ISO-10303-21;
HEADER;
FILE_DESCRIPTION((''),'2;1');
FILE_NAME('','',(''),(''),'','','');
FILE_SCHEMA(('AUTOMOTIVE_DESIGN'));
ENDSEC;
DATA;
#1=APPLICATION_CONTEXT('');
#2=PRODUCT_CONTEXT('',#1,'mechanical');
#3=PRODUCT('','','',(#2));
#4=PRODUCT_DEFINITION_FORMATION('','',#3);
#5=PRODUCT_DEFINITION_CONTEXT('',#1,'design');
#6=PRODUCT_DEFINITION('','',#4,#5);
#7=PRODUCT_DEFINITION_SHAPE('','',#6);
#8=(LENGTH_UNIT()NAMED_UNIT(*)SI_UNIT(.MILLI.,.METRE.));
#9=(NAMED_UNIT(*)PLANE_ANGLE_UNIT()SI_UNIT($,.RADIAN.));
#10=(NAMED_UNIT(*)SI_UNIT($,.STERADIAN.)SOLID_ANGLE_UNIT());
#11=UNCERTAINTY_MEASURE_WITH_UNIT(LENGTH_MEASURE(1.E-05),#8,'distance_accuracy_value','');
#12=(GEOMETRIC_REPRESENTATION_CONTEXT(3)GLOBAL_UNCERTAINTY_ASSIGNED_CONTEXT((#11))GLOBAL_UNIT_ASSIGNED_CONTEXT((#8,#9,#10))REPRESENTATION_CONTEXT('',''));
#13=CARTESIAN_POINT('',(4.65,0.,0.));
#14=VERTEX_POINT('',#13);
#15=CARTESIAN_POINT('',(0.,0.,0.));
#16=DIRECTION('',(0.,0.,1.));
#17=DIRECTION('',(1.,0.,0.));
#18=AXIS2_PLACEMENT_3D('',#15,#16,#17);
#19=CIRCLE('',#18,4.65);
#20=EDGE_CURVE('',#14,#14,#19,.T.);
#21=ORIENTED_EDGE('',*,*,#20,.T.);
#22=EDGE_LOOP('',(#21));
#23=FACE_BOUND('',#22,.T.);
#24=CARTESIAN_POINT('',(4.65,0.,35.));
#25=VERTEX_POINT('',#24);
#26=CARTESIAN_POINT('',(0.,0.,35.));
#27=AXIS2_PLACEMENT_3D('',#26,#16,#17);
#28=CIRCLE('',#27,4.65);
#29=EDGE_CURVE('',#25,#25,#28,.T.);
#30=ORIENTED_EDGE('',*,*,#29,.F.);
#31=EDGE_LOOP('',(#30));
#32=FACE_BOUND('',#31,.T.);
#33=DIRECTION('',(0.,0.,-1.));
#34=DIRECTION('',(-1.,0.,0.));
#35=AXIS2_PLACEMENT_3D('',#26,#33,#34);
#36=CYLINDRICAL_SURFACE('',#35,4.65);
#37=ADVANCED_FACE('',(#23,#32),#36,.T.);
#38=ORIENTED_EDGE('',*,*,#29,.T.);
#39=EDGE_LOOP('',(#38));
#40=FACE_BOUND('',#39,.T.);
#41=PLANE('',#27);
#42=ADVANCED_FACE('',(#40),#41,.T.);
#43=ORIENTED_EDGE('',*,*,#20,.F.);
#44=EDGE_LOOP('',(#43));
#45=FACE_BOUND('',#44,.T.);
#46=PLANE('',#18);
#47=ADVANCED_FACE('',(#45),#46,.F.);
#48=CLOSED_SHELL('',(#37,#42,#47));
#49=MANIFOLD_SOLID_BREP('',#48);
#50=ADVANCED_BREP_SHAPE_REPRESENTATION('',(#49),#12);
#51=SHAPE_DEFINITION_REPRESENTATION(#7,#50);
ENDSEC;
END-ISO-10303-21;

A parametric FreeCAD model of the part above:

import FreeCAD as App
import Part
import Sketcher
from FreeCAD import Vector
Q = App.Units.Quantity

doc = App.newDocument("Part")
body = doc.addObject("PartDesign::Body", "Body")

# Sketch on XY plane
sketch1 = doc.addObject("Sketcher::SketchObject", "Sketch")
body.addObject(sketch1)
sketch1.AttachmentSupport = (doc.XY_Plane, [""])
sketch1.MapMode = "FlatFace"
sketch1.addGeometry(Part.Circle(Vector(0, 0, 0), Vector(0, 0, 1), 4.65), False)
sketch1.addConstraint(Sketcher.Constraint("Coincident", 0, 3, -1, 1))
sketch1.addConstraint(Sketcher.Constraint("Diameter", 0, Q("9.3 mm")))
pad1 = doc.addObject("PartDesign::Pad", "Pad")
body.addObject(pad1)
pad1.Profile = sketch1
pad1.Length = 35

doc.recompute()
